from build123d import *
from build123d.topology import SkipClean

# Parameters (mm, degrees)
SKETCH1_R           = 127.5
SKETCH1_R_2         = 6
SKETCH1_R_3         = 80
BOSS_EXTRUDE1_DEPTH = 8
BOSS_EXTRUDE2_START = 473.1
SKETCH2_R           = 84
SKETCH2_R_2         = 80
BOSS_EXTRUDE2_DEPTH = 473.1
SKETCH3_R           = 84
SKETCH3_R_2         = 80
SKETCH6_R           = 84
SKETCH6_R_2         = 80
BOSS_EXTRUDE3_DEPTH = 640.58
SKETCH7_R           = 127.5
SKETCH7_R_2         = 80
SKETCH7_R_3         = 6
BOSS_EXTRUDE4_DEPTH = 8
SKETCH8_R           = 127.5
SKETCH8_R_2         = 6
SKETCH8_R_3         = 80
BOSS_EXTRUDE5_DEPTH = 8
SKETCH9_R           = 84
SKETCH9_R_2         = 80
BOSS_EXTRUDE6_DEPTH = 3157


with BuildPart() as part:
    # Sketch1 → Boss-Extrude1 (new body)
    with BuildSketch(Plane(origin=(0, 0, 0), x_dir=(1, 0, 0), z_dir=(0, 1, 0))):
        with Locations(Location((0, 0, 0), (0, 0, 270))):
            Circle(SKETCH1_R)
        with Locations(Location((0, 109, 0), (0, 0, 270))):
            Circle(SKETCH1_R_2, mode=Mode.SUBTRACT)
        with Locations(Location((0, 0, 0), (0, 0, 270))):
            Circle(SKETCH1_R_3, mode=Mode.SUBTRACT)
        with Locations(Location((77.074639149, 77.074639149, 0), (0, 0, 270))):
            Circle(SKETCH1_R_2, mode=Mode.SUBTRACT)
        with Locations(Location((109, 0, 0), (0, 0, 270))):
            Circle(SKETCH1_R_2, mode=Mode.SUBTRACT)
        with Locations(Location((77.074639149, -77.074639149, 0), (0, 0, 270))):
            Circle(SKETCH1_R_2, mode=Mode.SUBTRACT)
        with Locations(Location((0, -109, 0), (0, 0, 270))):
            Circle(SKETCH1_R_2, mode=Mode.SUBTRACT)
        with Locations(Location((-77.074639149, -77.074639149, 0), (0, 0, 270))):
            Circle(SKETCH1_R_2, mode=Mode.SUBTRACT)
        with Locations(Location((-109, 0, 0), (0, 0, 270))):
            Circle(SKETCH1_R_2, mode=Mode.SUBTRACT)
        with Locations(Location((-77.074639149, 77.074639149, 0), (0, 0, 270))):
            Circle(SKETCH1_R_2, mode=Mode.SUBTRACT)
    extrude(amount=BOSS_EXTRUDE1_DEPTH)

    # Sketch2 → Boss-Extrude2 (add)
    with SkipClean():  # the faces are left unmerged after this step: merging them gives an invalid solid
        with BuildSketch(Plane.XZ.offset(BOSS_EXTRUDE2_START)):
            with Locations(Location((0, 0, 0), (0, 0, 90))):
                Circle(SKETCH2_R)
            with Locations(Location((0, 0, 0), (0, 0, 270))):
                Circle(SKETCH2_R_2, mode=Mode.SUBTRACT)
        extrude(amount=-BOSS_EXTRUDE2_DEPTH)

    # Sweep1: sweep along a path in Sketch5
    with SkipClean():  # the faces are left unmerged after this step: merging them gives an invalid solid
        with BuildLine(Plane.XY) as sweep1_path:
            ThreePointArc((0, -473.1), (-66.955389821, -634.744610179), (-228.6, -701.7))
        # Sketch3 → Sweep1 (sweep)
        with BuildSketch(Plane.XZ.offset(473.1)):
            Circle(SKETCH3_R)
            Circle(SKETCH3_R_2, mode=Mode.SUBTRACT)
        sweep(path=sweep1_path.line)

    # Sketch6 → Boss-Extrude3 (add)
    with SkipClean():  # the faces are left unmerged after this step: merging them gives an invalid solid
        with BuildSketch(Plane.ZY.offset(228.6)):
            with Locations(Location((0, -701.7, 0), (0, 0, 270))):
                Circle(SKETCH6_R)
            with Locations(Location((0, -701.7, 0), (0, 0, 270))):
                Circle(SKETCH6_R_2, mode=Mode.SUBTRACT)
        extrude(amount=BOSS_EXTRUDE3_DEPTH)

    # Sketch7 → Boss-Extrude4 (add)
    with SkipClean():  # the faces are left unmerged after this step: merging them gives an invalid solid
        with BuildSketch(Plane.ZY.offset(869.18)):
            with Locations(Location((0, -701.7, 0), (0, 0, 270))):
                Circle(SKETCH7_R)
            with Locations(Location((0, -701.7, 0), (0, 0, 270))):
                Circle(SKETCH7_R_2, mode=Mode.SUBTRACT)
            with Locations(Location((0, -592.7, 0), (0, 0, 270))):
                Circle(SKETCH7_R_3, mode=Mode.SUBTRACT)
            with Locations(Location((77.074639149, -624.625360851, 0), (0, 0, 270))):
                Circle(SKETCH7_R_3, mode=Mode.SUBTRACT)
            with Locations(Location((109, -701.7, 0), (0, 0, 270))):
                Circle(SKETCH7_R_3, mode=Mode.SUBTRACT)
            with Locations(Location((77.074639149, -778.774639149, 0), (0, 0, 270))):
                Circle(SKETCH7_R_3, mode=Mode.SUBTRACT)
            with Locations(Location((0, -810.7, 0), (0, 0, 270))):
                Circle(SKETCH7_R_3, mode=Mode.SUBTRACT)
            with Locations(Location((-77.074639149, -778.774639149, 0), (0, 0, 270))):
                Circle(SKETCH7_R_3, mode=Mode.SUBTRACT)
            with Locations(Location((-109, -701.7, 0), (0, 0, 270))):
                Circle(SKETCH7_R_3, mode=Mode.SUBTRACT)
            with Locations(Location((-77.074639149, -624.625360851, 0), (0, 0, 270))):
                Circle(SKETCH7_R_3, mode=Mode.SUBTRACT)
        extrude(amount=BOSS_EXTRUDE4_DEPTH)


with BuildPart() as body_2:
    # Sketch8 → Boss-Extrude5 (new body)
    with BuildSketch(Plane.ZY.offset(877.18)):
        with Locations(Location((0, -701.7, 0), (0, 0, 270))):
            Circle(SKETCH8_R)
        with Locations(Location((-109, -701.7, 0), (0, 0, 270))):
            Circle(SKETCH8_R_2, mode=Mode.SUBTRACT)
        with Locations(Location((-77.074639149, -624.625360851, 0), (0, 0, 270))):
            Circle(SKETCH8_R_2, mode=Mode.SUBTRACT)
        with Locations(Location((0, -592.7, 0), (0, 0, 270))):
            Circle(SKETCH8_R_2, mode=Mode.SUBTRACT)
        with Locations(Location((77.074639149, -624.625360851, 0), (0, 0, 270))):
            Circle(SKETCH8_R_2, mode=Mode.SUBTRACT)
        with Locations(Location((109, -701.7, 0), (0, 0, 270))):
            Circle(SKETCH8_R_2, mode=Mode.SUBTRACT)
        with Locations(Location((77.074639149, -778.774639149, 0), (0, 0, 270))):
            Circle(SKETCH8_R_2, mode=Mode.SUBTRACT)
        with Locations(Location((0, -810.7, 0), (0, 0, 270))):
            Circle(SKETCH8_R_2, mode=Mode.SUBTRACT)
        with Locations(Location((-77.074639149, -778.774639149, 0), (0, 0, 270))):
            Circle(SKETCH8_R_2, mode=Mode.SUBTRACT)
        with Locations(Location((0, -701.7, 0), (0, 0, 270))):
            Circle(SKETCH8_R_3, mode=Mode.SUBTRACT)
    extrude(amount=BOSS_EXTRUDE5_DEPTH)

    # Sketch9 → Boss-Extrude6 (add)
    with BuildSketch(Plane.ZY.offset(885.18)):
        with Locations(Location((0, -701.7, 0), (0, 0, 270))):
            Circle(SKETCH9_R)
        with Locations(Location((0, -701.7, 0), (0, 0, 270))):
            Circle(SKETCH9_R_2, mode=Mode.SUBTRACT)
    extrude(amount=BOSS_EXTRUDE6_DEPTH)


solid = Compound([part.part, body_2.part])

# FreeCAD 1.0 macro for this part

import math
import FreeCAD as App
import Part
import Sketcher

V = App.Vector

doc = App.newDocument("Part")
params = doc.addObject("Spreadsheet::Sheet", "Params")
for row, (alias, value) in enumerate([
    ("sketch1_diameter", "255 mm"),
    ("sketch1_diameter2", "12 mm"),
    ("sketch1_diameter3", "160 mm"),
    ("pad1_length", "8 mm"),
    ("sketch2_diameter", "168 mm"),
    ("sketch2_diameter2", "160 mm"),
    ("pad2_length", "473.1 mm"),
    ("sketch3_diameter", "168 mm"),
    ("sketch3_diameter2", "160 mm"),
    ("sketch4_radius", "228.6 mm"),
    ("sketch5_diameter", "168 mm"),
    ("sketch5_diameter2", "160 mm"),
    ("pad3_length", "640.58 mm"),
    ("sketch6_diameter", "255 mm"),
    ("sketch6_diameter2", "12 mm"),
    ("sketch6_diameter3", "160 mm"),
    ("pad4_length", "8 mm"),
    ("sketch7_diameter", "255 mm"),
    ("sketch7_diameter2", "12 mm"),
    ("sketch7_diameter3", "160 mm"),
    ("pad5_length", "8 mm"),
    ("sketch8_diameter", "168 mm"),
    ("sketch8_diameter2", "160 mm"),
    ("pad6_length", "3157 mm"),
], start=1):
    params.set(f"A{row}", alias)
    params.set(f"B{row}", "=" + value)
    params.setAlias(f"B{row}", alias)

body = doc.addObject("PartDesign::Body", "Body")

sketch1 = body.newObject("Sketcher::SketchObject", "Sketch")
sketch1.AttachmentSupport = (doc.getObject("XZ_Plane"), [""])
sketch1.MapMode = "FlatFace"
sketch1.addGeometry([
    Part.Circle(V(0, 0, 0), V(0, 0, 1), 127.5),
    Part.Circle(V(-77.074639, -77.074639, 0), V(0, 0, 1), 6),
    Part.Circle(V(0, -109, 0), V(0, 0, 1), 6),
    Part.Circle(V(-109, 0, 0), V(0, 0, 1), 6),
    Part.Circle(V(-77.074639, 77.074639, 0), V(0, 0, 1), 6),
    Part.Circle(V(77.074639, -77.074639, 0), V(0, 0, 1), 6),
    Part.Circle(V(109, 0, 0), V(0, 0, 1), 6),
    Part.Circle(V(0, 0, 0), V(0, 0, 1), 80),
    Part.Circle(V(0, 109, 0), V(0, 0, 1), 6),
    Part.Circle(V(77.074639, 77.074639, 0), V(0, 0, 1), 6),
], False)
sketch1.addConstraint([
    Sketcher.Constraint("Coincident", 0, 3, -1, 1),
    Sketcher.Constraint("Coincident", 7, 3, -1, 1),
    Sketcher.Constraint("Equal", 1, 2),
    Sketcher.Constraint("Equal", 2, 3),
    Sketcher.Constraint("Equal", 3, 4),
    Sketcher.Constraint("Equal", 4, 5),
    Sketcher.Constraint("Equal", 5, 6),
    Sketcher.Constraint("Equal", 6, 8),
    Sketcher.Constraint("Equal", 8, 9),
    Sketcher.Constraint("Symmetric", 4, 3, 5, 3, -1, 1),
    Sketcher.Constraint("Symmetric", 3, 3, 6, 3, -1, 1),
    Sketcher.Constraint("Symmetric", 2, 3, 8, 3, -1, 1),
    Sketcher.Constraint("Symmetric", 1, 3, 9, 3, -1, 1),
    Sketcher.Constraint("Symmetric", 1, 3, 5, 3, -2),
    Sketcher.Constraint("PointOnObject", 2, 3, -2),
    Sketcher.Constraint("PointOnObject", 3, 3, -1),
    Sketcher.Constraint("Diameter", 0, 255.0),
    Sketcher.Constraint("Diameter", 1, 12.0),
    Sketcher.Constraint("Diameter", 7, 160.0),
    Sketcher.Constraint("DistanceY", 2, 3, -1, 1, 109.0),
    Sketcher.Constraint("DistanceX", 3, 3, -1, 1, 109.0),
    Sketcher.Constraint("DistanceX", 1, 3, -1, 1, 77.074639),
    Sketcher.Constraint("DistanceY", 1, 3, -1, 1, 77.074639),
])
sketch1.setExpression("Constraints[16]", "Params.sketch1_diameter")
sketch1.setExpression("Constraints[17]", "Params.sketch1_diameter2")
sketch1.setExpression("Constraints[18]", "Params.sketch1_diameter3")
pad1 = body.newObject("PartDesign::Pad", "Pad")
pad1.Profile = sketch1
pad1.setExpression("Length", "Params.pad1_length")
pad1.Reversed = True

sketch2 = body.newObject("Sketcher::SketchObject", "Sketch001")
sketch2.AttachmentSupport = (doc.getObject("XZ_Plane"), [""])
sketch2.MapMode = "FlatFace"
sketch2.AttachmentOffset = App.Placement(V(0, 0, 473.1), App.Rotation())
sketch2.addGeometry([
    Part.Circle(V(0, 0, 0), V(0, 0, 1), 84),
    Part.Circle(V(0, 0, 0), V(0, 0, 1), 80),
], False)
sketch2.addConstraint([
    Sketcher.Constraint("Coincident", 0, 3, -1, 1),
    Sketcher.Constraint("Coincident", 1, 3, -1, 1),
    Sketcher.Constraint("Diameter", 0, 168.0),
    Sketcher.Constraint("Diameter", 1, 160.0),
])
sketch2.setExpression("Constraints[2]", "Params.sketch2_diameter")
sketch2.setExpression("Constraints[3]", "Params.sketch2_diameter2")
pad2 = body.newObject("PartDesign::Pad", "Pad001")
pad2.Profile = sketch2
pad2.setExpression("Length", "Params.pad2_length")
pad2.Reversed = True

sketch3 = body.newObject("Sketcher::SketchObject", "Sketch002")
sketch3.AttachmentSupport = (doc.getObject("XZ_Plane"), [""])
sketch3.MapMode = "FlatFace"
sketch3.AttachmentOffset = App.Placement(V(0, 0, 473.1), App.Rotation())
sketch3.addGeometry([
    Part.Circle(V(0, 0, 0), V(0, 0, 1), 84),
    Part.Circle(V(0, 0, 0), V(0, 0, 1), 80),
], False)
sketch3.addConstraint([
    Sketcher.Constraint("Coincident", 0, 3, -1, 1),
    Sketcher.Constraint("Coincident", 1, 3, -1, 1),
    Sketcher.Constraint("Diameter", 0, 168.0),
    Sketcher.Constraint("Diameter", 1, 160.0),
])
sketch3.setExpression("Constraints[2]", "Params.sketch3_diameter")
sketch3.setExpression("Constraints[3]", "Params.sketch3_diameter2")

sketch4 = body.newObject("Sketcher::SketchObject", "Sketch003")
sketch4.AttachmentSupport = (doc.getObject("XY_Plane"), [""])
sketch4.MapMode = "FlatFace"
sketch4.addGeometry(Part.ArcOfCircle(Part.Circle(V(-228.6, -473.1, 0), V(0, 0, 1), 228.6), math.radians(-90), math.radians(0)), False)
sketch4.addConstraint([
    Sketcher.Constraint("PointOnObject", 0, 2, -2),
    Sketcher.Constraint("Radius", 0, 228.6),
    Sketcher.Constraint("DistanceY", 0, 3, -1, 1, 473.1),
    Sketcher.Constraint("DistanceX", 0, 1, -1, 1, 228.6),
    Sketcher.Constraint("DistanceY", 0, 2, -1, 1, 473.1),
])
sketch4.setExpression("Constraints[1]", "Params.sketch4_radius")
doc.recompute()

additivepipe = body.newObject("PartDesign::AdditivePipe", "AdditivePipe")
additivepipe.Profile = sketch3
additivepipe.Spine = (sketch4, ["Edge1"])

sketch5 = body.newObject("Sketcher::SketchObject", "Sketch004")
sketch5.AttachmentSupport = (doc.getObject("YZ_Plane"), [""])
sketch5.MapMode = "FlatFace"
sketch5.AttachmentOffset = App.Placement(V(0, 0, -228.6), App.Rotation())
sketch5.addGeometry([
    Part.Circle(V(-701.7, 0, 0), V(0, 0, 1), 84),
    Part.Circle(V(-701.7, 0, 0), V(0, 0, 1), 80),
], False)
sketch5.addConstraint([
    Sketcher.Constraint("Coincident", 1, 3, 0, 3),
    Sketcher.Constraint("PointOnObject", 0, 3, -1),
    Sketcher.Constraint("Diameter", 0, 168.0),
    Sketcher.Constraint("Diameter", 1, 160.0),
    Sketcher.Constraint("DistanceX", 0, 3, -1, 1, 701.7),
])
sketch5.setExpression("Constraints[2]", "Params.sketch5_diameter")
sketch5.setExpression("Constraints[3]", "Params.sketch5_diameter2")
pad3 = body.newObject("PartDesign::Pad", "Pad002")
pad3.Profile = sketch5
pad3.setExpression("Length", "Params.pad3_length")
pad3.Reversed = True

sketch6 = body.newObject("Sketcher::SketchObject", "Sketch005")
sketch6.AttachmentSupport = (doc.getObject("YZ_Plane"), [""])
sketch6.MapMode = "FlatFace"
sketch6.AttachmentOffset = App.Placement(V(0, 0, -869.18), App.Rotation())
sketch6.addGeometry([
    Part.Circle(V(-701.7, 0, 0), V(0, 0, 1), 127.5),
    Part.Circle(V(-624.625361, -77.074639, 0), V(0, 0, 1), 6),
    Part.Circle(V(-592.7, 0, 0), V(0, 0, 1), 6),
    Part.Circle(V(-701.7, -109, 0), V(0, 0, 1), 6),
    Part.Circle(V(-778.774639, -77.074639, 0), V(0, 0, 1), 6),
    Part.Circle(V(-624.625361, 77.074639, 0), V(0, 0, 1), 6),
    Part.Circle(V(-701.7, 0, 0), V(0, 0, 1), 80),
    Part.Circle(V(-810.7, 0, 0), V(0, 0, 1), 6),
    Part.Circle(V(-701.7, 109, 0), V(0, 0, 1), 6),
    Part.Circle(V(-778.774639, 77.074639, 0), V(0, 0, 1), 6),
], False)
sketch6.addConstraint([
    Sketcher.Constraint("Coincident", 6, 3, 0, 3),
    Sketcher.Constraint("Equal", 1, 2),
    Sketcher.Constraint("Equal", 2, 3),
    Sketcher.Constraint("Equal", 3, 4),
    Sketcher.Constraint("Equal", 4, 5),
    Sketcher.Constraint("Equal", 5, 7),
    Sketcher.Constraint("Equal", 7, 8),
    Sketcher.Constraint("Equal", 8, 9),
    Sketcher.Constraint("Symmetric", 1, 3, 5, 3, -1),
    Sketcher.Constraint("Symmetric", 3, 3, 8, 3, -1),
    Sketcher.Constraint("Symmetric", 4, 3, 9, 3, -1),
    Sketcher.Constraint("PointOnObject", 0, 3, -1),
    Sketcher.Constraint("PointOnObject", 2, 3, -1),
    Sketcher.Constraint("PointOnObject", 7, 3, -1),
    Sketcher.Constraint("Horizontal", 1, 3, 4, 3),
    Sketcher.Constraint("Vertical", 0, 3, 3, 3),
    Sketcher.Constraint("Diameter", 0, 255.0),
    Sketcher.Constraint("Diameter", 1, 12.0),
    Sketcher.Constraint("Diameter", 6, 160.0),
    Sketcher.Constraint("DistanceY", 3, 3, -1, 1, 109.0),
    Sketcher.Constraint("DistanceX", 0, 3, 2, 3, 109.0),
    Sketcher.Constraint("DistanceX", 7, 3, 0, 3, 109.0),
    Sketcher.Constraint("DistanceX", 0, 3, -1, 1, 701.7),
    Sketcher.Constraint("DistanceX", 1, 3, -1, 1, 624.625361),
    Sketcher.Constraint("DistanceY", 1, 3, -1, 1, 77.074639),
    Sketcher.Constraint("DistanceX", 4, 3, -1, 1, 778.774639),
])
sketch6.setExpression("Constraints[16]", "Params.sketch6_diameter")
sketch6.setExpression("Constraints[17]", "Params.sketch6_diameter2")
sketch6.setExpression("Constraints[18]", "Params.sketch6_diameter3")
pad4 = body.newObject("PartDesign::Pad", "Pad003")
pad4.Profile = sketch6
pad4.setExpression("Length", "Params.pad4_length")
pad4.Reversed = True
body2 = doc.addObject("PartDesign::Body", "Body001")

sketch7 = body2.newObject("Sketcher::SketchObject", "Sketch006")
sketch7.AttachmentSupport = (doc.getObject("YZ_Plane001"), [""])
sketch7.MapMode = "FlatFace"
sketch7.AttachmentOffset = App.Placement(V(0, 0, -877.18), App.Rotation())
sketch7.addGeometry([
    Part.Circle(V(-701.7, 0, 0), V(0, 0, 1), 127.5),
    Part.Circle(V(-624.625361, -77.074639, 0), V(0, 0, 1), 6),
    Part.Circle(V(-592.7, 0, 0), V(0, 0, 1), 6),
    Part.Circle(V(-701.7, -109, 0), V(0, 0, 1), 6),
    Part.Circle(V(-778.774639, -77.074639, 0), V(0, 0, 1), 6),
    Part.Circle(V(-624.625361, 77.074639, 0), V(0, 0, 1), 6),
    Part.Circle(V(-701.7, 0, 0), V(0, 0, 1), 80),
    Part.Circle(V(-810.7, 0, 0), V(0, 0, 1), 6),
    Part.Circle(V(-701.7, 109, 0), V(0, 0, 1), 6),
    Part.Circle(V(-778.774639, 77.074639, 0), V(0, 0, 1), 6),
], False)
sketch7.addConstraint([
    Sketcher.Constraint("Coincident", 6, 3, 0, 3),
    Sketcher.Constraint("Equal", 1, 2),
    Sketcher.Constraint("Equal", 2, 3),
    Sketcher.Constraint("Equal", 3, 4),
    Sketcher.Constraint("Equal", 4, 5),
    Sketcher.Constraint("Equal", 5, 7),
    Sketcher.Constraint("Equal", 7, 8),
    Sketcher.Constraint("Equal", 8, 9),
    Sketcher.Constraint("Symmetric", 1, 3, 5, 3, -1),
    Sketcher.Constraint("Symmetric", 3, 3, 8, 3, -1),
    Sketcher.Constraint("Symmetric", 4, 3, 9, 3, -1),
    Sketcher.Constraint("PointOnObject", 0, 3, -1),
    Sketcher.Constraint("PointOnObject", 2, 3, -1),
    Sketcher.Constraint("PointOnObject", 7, 3, -1),
    Sketcher.Constraint("Horizontal", 1, 3, 4, 3),
    Sketcher.Constraint("Vertical", 0, 3, 3, 3),
    Sketcher.Constraint("Diameter", 0, 255.0),
    Sketcher.Constraint("Diameter", 1, 12.0),
    Sketcher.Constraint("Diameter", 6, 160.0),
    Sketcher.Constraint("DistanceY", 3, 3, -1, 1, 109.0),
    Sketcher.Constraint("DistanceX", 0, 3, 2, 3, 109.0),
    Sketcher.Constraint("DistanceX", 7, 3, 0, 3, 109.0),
    Sketcher.Constraint("DistanceX", 0, 3, -1, 1, 701.7),
    Sketcher.Constraint("DistanceX", 1, 3, -1, 1, 624.625361),
    Sketcher.Constraint("DistanceY", 1, 3, -1, 1, 77.074639),
    Sketcher.Constraint("DistanceX", 4, 3, -1, 1, 778.774639),
])
sketch7.setExpression("Constraints[16]", "Params.sketch7_diameter")
sketch7.setExpression("Constraints[17]", "Params.sketch7_diameter2")
sketch7.setExpression("Constraints[18]", "Params.sketch7_diameter3")
pad5 = body2.newObject("PartDesign::Pad", "Pad004")
pad5.Profile = sketch7
pad5.setExpression("Length", "Params.pad5_length")
pad5.Reversed = True

sketch8 = body2.newObject("Sketcher::SketchObject", "Sketch007")
sketch8.AttachmentSupport = (doc.getObject("YZ_Plane001"), [""])
sketch8.MapMode = "FlatFace"
sketch8.AttachmentOffset = App.Placement(V(0, 0, -885.18), App.Rotation())
sketch8.addGeometry([
    Part.Circle(V(-701.7, 0, 0), V(0, 0, 1), 84),
    Part.Circle(V(-701.7, 0, 0), V(0, 0, 1), 80),
], False)
sketch8.addConstraint([
    Sketcher.Constraint("Coincident", 1, 3, 0, 3),
    Sketcher.Constraint("PointOnObject", 0, 3, -1),
    Sketcher.Constraint("Diameter", 0, 168.0),
    Sketcher.Constraint("Diameter", 1, 160.0),
    Sketcher.Constraint("DistanceX", 0, 3, -1, 1, 701.7),
])
sketch8.setExpression("Constraints[2]", "Params.sketch8_diameter")
sketch8.setExpression("Constraints[3]", "Params.sketch8_diameter2")
pad6 = body2.newObject("PartDesign::Pad", "Pad005")
pad6.Profile = sketch8
pad6.setExpression("Length", "Params.pad6_length")
pad6.Reversed = True

doc.recompute()
